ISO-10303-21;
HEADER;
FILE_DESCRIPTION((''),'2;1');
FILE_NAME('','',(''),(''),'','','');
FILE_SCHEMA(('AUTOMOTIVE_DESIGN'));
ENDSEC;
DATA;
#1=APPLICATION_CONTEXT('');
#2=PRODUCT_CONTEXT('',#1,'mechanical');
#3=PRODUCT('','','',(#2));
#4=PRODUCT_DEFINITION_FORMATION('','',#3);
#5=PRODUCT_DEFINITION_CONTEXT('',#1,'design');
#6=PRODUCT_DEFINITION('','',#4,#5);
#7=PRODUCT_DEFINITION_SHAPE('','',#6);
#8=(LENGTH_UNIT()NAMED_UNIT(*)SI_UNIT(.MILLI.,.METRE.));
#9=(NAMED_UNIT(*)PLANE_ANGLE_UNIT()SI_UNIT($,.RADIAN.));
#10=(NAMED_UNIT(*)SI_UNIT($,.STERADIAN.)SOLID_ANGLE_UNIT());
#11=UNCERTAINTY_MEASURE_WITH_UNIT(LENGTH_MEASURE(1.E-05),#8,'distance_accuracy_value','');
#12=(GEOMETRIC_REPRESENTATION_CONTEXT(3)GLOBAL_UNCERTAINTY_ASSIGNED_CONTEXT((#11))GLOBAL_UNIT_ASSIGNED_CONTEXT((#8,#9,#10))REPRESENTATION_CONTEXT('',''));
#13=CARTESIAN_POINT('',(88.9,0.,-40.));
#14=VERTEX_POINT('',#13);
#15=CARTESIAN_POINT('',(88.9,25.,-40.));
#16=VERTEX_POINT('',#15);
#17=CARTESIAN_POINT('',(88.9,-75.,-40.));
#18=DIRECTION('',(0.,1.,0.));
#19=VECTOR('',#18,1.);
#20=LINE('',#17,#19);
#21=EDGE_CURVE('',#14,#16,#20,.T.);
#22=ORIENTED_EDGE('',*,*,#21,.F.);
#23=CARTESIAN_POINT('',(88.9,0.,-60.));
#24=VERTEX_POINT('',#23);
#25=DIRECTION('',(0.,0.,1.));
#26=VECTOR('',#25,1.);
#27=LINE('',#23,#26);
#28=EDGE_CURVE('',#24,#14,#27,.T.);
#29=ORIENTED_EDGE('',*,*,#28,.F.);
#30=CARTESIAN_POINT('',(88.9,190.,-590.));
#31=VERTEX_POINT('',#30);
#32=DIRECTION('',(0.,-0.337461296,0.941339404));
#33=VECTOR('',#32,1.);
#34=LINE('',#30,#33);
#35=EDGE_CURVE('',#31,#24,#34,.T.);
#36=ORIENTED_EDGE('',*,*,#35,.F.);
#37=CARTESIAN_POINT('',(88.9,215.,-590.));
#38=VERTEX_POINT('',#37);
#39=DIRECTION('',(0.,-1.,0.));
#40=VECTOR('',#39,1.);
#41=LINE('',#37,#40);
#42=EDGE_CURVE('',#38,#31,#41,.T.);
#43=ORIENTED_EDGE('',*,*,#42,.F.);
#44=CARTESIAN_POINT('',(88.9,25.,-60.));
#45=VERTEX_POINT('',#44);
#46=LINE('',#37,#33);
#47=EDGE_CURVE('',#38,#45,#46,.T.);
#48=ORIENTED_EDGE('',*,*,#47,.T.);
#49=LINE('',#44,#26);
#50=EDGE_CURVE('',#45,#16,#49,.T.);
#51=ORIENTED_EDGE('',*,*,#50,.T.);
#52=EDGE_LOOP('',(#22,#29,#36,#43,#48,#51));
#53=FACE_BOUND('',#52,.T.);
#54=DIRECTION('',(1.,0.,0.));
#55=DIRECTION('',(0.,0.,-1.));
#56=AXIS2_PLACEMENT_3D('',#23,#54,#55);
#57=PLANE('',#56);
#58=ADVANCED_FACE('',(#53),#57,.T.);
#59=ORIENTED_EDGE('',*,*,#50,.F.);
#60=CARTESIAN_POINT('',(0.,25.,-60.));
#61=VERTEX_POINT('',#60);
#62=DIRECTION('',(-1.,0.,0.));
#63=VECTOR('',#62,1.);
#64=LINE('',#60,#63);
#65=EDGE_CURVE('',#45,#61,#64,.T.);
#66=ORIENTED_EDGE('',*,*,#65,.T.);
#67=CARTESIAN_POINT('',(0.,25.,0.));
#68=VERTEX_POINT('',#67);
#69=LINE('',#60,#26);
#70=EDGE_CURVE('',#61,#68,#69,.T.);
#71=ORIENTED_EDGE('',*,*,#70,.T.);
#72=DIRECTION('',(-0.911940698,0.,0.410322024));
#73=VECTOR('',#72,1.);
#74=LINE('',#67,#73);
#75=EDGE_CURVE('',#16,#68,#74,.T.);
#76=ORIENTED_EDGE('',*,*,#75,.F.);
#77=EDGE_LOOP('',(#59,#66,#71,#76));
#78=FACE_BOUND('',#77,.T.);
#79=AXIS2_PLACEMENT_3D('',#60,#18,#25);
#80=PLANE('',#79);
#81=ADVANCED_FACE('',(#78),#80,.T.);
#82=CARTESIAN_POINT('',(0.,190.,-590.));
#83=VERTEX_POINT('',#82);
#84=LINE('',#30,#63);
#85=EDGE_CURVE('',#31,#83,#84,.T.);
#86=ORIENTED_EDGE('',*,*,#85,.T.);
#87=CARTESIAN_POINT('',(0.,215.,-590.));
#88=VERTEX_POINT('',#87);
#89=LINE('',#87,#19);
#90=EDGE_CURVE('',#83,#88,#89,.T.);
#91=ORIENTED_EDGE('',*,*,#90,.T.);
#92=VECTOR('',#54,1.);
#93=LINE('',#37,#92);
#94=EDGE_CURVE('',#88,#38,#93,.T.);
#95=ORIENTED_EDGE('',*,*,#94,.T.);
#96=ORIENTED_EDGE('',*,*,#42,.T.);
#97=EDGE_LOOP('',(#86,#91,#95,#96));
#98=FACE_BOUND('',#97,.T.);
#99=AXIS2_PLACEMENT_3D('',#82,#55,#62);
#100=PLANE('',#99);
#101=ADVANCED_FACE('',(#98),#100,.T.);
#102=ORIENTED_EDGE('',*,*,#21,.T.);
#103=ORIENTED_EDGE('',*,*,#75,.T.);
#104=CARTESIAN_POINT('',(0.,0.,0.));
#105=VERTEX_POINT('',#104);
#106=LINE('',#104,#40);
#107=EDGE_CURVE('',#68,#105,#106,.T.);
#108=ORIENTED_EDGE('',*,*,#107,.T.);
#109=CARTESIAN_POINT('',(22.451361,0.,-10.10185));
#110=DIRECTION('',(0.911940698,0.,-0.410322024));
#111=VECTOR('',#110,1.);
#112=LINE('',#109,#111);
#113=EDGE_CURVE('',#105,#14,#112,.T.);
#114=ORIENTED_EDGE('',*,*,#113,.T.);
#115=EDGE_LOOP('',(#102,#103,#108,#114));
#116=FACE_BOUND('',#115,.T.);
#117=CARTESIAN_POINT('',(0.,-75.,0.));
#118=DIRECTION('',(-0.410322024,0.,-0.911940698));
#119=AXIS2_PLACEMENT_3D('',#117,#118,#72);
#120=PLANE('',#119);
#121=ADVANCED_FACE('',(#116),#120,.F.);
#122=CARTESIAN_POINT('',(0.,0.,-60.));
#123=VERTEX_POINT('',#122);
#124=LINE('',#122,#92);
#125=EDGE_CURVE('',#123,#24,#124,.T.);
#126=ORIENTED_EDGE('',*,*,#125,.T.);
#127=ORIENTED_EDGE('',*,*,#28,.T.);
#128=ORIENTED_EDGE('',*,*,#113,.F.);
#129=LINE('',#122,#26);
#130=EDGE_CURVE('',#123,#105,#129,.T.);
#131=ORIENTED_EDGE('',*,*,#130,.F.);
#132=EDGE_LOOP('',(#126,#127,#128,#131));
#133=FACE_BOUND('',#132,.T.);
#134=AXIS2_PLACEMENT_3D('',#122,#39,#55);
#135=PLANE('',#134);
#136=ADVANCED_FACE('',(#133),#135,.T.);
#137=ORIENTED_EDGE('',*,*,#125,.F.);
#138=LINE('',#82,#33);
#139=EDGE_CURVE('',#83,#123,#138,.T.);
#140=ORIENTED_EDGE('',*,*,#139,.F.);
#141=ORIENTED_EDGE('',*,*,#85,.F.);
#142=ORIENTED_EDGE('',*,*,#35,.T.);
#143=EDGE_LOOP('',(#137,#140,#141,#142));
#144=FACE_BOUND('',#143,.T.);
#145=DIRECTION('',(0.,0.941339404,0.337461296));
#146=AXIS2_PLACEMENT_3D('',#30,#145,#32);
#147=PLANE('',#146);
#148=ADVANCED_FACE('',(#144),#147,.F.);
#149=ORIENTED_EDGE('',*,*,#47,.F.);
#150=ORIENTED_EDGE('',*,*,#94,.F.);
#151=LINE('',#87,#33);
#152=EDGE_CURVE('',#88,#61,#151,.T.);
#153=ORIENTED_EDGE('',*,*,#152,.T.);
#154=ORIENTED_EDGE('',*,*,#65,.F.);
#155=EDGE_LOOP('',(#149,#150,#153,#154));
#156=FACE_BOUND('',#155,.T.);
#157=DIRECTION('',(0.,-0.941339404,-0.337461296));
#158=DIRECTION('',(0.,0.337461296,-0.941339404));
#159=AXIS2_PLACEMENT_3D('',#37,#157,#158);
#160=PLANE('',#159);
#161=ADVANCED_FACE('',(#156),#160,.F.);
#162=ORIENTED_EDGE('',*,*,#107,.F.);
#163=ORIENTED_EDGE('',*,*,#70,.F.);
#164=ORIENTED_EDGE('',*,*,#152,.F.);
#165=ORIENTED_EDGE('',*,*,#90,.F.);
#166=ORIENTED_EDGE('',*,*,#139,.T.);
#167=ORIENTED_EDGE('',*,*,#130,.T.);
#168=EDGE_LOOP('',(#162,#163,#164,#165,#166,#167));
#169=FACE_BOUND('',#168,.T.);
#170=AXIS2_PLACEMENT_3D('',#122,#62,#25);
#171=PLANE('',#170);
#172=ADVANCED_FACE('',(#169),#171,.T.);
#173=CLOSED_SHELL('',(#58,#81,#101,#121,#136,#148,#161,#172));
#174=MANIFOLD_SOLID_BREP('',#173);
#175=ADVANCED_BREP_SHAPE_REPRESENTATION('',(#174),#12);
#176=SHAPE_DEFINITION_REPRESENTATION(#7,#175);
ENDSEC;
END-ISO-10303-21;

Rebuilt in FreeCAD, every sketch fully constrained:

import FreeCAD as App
import Part
import Sketcher

V = App.Vector


def add_polygon(sketch, points):
    """Adds a closed chain of lines whose ends are joined by coincident constraints."""
    first, n = sketch.GeometryCount, len(points)
    for a, b in zip(points, points[1:] + points[:1]):
        sketch.addGeometry(Part.LineSegment(App.Vector(*a, 0), App.Vector(*b, 0)), False)
    for i in range(n):
        sketch.addConstraint(Sketcher.Constraint("Coincident", first + i, 2, first + (i + 1) % n, 1))

doc = App.newDocument("Part")
body = doc.addObject("PartDesign::Body", "Body")

# Sketch on XY plane
sketch1 = body.newObject("Sketcher::SketchObject", "Sketch")
sketch1.AttachmentSupport = (doc.getObject("XY_Plane"), [""])
sketch1.MapMode = "FlatFace"
add_polygon(sketch1, [(0, 25), (0, 0), (89, 0), (89, 25)])  # lines 0-3
sketch1.addConstraint([
    Sketcher.Constraint("Vertical", 0),
    Sketcher.Constraint("Horizontal", 1),
    Sketcher.Constraint("Vertical", 2),
    Sketcher.Constraint("Horizontal", 3),
    Sketcher.Constraint("Coincident", 0, 2, -1, 1),
    Sketcher.Constraint("DistanceY", 0, 2, 0, 1, 25.0),
    Sketcher.Constraint("DistanceX", 1, 1, 1, 2, 88.9),
])
pad1 = body.newObject("PartDesign::Pad", "Pad")
pad1.Profile = sketch1
pad1.Length = 60
pad1.Reversed = True

# Sketch on XY plane
sketch2 = body.newObject("Sketcher::SketchObject", "Sketch001")
sketch2.AttachmentSupport = (doc.getObject("XY_Plane"), [""])
sketch2.MapMode = "FlatFace"
sketch2.AttachmentOffset = App.Placement(V(0, 0, -60), App.Rotation())
add_polygon(sketch2, [(89, 25), (89, 0), (0, 0), (0, 25)])  # lines 0-3
sketch2.addConstraint([
    Sketcher.Constraint("Vertical", 0),
    Sketcher.Constraint("Horizontal", 1),
    Sketcher.Constraint("Vertical", 2),
    Sketcher.Constraint("Horizontal", 3),
    Sketcher.Constraint("Coincident", 1, 2, -1, 1),
    Sketcher.Constraint("DistanceY", 0, 2, 0, 1, 25.0),
    Sketcher.Constraint("DistanceX", 1, 2, 1, 1, 88.9),
])

# Sketch on an angled plane
sketch3 = body.newObject("Sketcher::SketchObject", "Sketch002")
sketch3.Placement = App.Placement(V(0, -7.983438, -2.861987), App.Rotation(V(0, 0.337461296, -0.941339404), V(1, 0, 0), V(0, -0.941339404, -0.337461296), "ZXY"))
sketch3.addGeometry(Part.LineSegment(V(624, 44, 0), V(61, 44, 0)), False)
sketch3.addConstraint([
    Sketcher.Constraint("Horizontal", 0),
    Sketcher.Constraint("DistanceY", -1, 1, 0, 1, 44.45),
    Sketcher.Constraint("DistanceX", 0, 2, 0, 1, 563.02753),
    Sketcher.Constraint("DistanceX", -1, 1, 0, 1, 623.726161),
])
doc.recompute()

additivepipe = body.newObject("PartDesign::AdditivePipe", "AdditivePipe")
additivepipe.Profile = sketch2
additivepipe.Spine = (sketch3, ["Edge1"])

# Sketch on XZ plane
sketch4 = body.newObject("Sketcher::SketchObject", "Sketch003")
sketch4.AttachmentSupport = (doc.getObject("XZ_Plane"), [""])
sketch4.MapMode = "FlatFace"
sketch4.AttachmentOffset = App.Placement(V(0, 0, -25), App.Rotation())
add_polygon(sketch4, [(89, -40), (0, 0), (89, 0)])  # lines 0-2
sketch4.addConstraint([
    Sketcher.Constraint("Horizontal", 1),
    Sketcher.Constraint("Vertical", 2),
    Sketcher.Constraint("Coincident", 0, 2, -1, 1),
    Sketcher.Constraint("DistanceY", 2, 2, 2, 1, 40.0),
    Sketcher.Constraint("DistanceX", 1, 1, 1, 2, 88.9),
])
pocket1 = body.newObject("PartDesign::Pocket", "Pocket")
pocket1.Profile = sketch4
pocket1.Length = 100
pocket1.Reversed = True

doc.recompute()
